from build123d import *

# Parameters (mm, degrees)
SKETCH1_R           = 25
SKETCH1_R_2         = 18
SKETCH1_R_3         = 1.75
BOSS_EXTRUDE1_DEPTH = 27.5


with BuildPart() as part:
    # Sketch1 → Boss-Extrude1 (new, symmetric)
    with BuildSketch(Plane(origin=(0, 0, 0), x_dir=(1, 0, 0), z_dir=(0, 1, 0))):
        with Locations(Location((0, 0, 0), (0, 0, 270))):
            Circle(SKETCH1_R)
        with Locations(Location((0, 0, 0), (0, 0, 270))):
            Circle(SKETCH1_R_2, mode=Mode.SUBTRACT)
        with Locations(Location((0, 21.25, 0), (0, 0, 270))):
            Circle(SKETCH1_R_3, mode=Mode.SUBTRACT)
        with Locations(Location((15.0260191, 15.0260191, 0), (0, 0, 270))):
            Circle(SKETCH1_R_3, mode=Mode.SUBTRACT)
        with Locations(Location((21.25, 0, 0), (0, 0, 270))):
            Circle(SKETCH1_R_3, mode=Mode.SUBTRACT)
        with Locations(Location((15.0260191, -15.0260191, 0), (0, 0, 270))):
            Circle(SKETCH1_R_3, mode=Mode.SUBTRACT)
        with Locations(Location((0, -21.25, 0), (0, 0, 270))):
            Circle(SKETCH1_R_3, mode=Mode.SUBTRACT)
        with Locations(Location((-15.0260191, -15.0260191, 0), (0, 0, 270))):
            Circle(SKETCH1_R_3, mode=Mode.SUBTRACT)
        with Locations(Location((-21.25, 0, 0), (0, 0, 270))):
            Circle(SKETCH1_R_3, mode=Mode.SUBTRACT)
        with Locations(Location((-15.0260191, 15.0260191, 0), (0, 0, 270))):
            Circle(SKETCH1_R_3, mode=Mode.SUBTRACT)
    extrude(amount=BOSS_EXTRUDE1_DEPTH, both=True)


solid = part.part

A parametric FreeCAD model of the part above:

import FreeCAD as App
import Part
import Sketcher

V = App.Vector
Q = App.Units.Quantity

doc = App.newDocument("Part")
body = doc.addObject("PartDesign::Body", "Body")

# Sketch on XZ plane
sketch1 = body.newObject("Sketcher::SketchObject", "Sketch")
sketch1.AttachmentSupport = (doc.getObject("XZ_Plane"), [""])
sketch1.MapMode = "FlatFace"
sketch1.addGeometry([
    Part.Circle(V(0, 0, 0), V(0, 0, 1), 25),  # 0
    Part.Circle(V(-15, -15, 0), V(0, 0, 1), 1.8),  # 1
    Part.Circle(V(0, -21.2, 0), V(0, 0, 1), 1.8),  # 2
    Part.Circle(V(-21.2, 0, 0), V(0, 0, 1), 1.8),  # 3
    Part.Circle(V(-15, 15, 0), V(0, 0, 1), 1.8),  # 4
    Part.Circle(V(15, -15, 0), V(0, 0, 1), 1.8),  # 5
    Part.Circle(V(21.2, 0, 0), V(0, 0, 1), 1.8),  # 6
    Part.Circle(V(0, 0, 0), V(0, 0, 1), 18),  # 7
    Part.Circle(V(0, 21.2, 0), V(0, 0, 1), 1.8),  # 8
    Part.Circle(V(15, 15, 0), V(0, 0, 1), 1.8),  # 9
], False)
sketch1.addConstraint([
    Sketcher.Constraint("Coincident", 0, 3, -1, 1),
    Sketcher.Constraint("Coincident", 7, 3, -1, 1),
    Sketcher.Constraint("Equal", 1, 2),
    Sketcher.Constraint("Equal", 2, 3),
    Sketcher.Constraint("Equal", 3, 4),
    Sketcher.Constraint("Equal", 4, 5),
    Sketcher.Constraint("Equal", 5, 6),
    Sketcher.Constraint("Equal", 6, 8),
    Sketcher.Constraint("Equal", 8, 9),
    Sketcher.Constraint("Symmetric", 4, 3, 5, 3, -1, 1),
    Sketcher.Constraint("Symmetric", 3, 3, 6, 3, -1, 1),
    Sketcher.Constraint("Symmetric", 2, 3, 8, 3, -1, 1),
    Sketcher.Constraint("Symmetric", 1, 3, 9, 3, -1, 1),
    Sketcher.Constraint("Symmetric", 1, 3, 5, 3, -2),
    Sketcher.Constraint("PointOnObject", 2, 3, -2),
    Sketcher.Constraint("PointOnObject", 3, 3, -1),
    Sketcher.Constraint("Diameter", 0, Q("50 mm")),
    Sketcher.Constraint("Diameter", 7, Q("36 mm")),
    Sketcher.Constraint("Diameter", 1, Q("3.5 mm")),
    Sketcher.Constraint("DistanceY", 2, 3, -1, 1, Q("21.25 mm")),
    Sketcher.Constraint("DistanceX", 3, 3, -1, 1, Q("21.25 mm")),
    Sketcher.Constraint("DistanceX", 1, 3, -1, 1, Q("15.026019 mm")),
    Sketcher.Constraint("DistanceY", 1, 3, -1, 1, Q("15.026019 mm")),
])
pad1 = body.newObject("PartDesign::Pad", "Pad")
pad1.Profile = sketch1
pad1.Length = 55
pad1.Midplane = True

doc.recompute()
